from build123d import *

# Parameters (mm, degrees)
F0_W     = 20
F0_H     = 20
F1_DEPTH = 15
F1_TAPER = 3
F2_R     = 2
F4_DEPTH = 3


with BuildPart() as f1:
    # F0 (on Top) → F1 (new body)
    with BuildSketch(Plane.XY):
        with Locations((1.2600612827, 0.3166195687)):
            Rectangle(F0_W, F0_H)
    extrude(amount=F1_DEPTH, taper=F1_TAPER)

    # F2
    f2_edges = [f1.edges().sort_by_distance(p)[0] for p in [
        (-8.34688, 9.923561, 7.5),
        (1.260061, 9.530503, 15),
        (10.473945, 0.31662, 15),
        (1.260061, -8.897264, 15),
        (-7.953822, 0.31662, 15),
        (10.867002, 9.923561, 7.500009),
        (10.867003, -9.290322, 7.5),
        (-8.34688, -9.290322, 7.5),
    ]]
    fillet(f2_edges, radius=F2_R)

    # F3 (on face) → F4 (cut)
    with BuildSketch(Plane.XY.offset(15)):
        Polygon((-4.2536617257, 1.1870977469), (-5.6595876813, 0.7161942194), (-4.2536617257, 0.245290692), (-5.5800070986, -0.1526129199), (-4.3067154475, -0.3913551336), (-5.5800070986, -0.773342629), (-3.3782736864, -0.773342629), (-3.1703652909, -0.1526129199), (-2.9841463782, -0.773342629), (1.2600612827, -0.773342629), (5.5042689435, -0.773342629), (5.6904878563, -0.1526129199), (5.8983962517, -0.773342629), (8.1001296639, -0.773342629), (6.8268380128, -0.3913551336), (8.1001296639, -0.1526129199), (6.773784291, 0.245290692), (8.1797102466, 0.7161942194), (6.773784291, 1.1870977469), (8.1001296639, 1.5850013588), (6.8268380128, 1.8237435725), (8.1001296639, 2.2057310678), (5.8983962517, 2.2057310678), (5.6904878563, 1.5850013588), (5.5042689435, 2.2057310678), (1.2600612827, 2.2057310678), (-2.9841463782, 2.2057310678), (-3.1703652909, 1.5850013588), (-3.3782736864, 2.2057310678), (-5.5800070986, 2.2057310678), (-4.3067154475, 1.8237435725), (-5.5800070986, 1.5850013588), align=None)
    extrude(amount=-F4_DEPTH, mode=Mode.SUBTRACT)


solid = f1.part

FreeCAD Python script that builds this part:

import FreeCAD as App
import Part
import Sketcher
from FreeCAD import Vector
Q = App.Units.Quantity


def edges_at(feature, points):
    """Names of the edges that pass closest to the given points."""
    edges = feature.Shape.Edges
    near = lambda p: min(range(len(edges)), key=lambda i: edges[i].distToShape(Part.Vertex(*p))[0])
    return sorted({f"Edge{near(p) + 1}" for p in points})


def add_polygon(sketch, points):
    """Adds a closed chain of lines whose ends are joined by coincident constraints."""
    first, n = sketch.GeometryCount, len(points)
    for a, b in zip(points, points[1:] + points[:1]):
        sketch.addGeometry(Part.LineSegment(App.Vector(*a, 0), App.Vector(*b, 0)), False)
    for i in range(n):
        sketch.addConstraint(Sketcher.Constraint("Coincident", first + i, 2, first + (i + 1) % n, 1))

doc = App.newDocument("Part")
body = doc.addObject("PartDesign::Body", "Body")

# Sketch on XY plane
sketch1 = body.newObject("Sketcher::SketchObject", "Sketch")
sketch1.AttachmentSupport = (doc.getObject("XY_Plane"), [""])
sketch1.MapMode = "FlatFace"
add_polygon(sketch1, [(-9, 10), (-9, -10), (11, -10), (11, 10)])  # lines 0-3
sketch1.addConstraint(Sketcher.Constraint("Vertical", 0))
sketch1.addConstraint(Sketcher.Constraint("Horizontal", 1))
sketch1.addConstraint(Sketcher.Constraint("Vertical", 2))
sketch1.addConstraint(Sketcher.Constraint("Horizontal", 3))
sketch1.addConstraint(Sketcher.Constraint("Equal", 3, 0))
sketch1.addConstraint(Sketcher.Constraint("DistanceX", 1, 1, 1, 2, Q("20 mm")))
sketch1.addConstraint(Sketcher.Constraint("DistanceX", 0, 2, -1, 1, Q("8.739939 mm")))
sketch1.addConstraint(Sketcher.Constraint("DistanceY", 0, 2, -1, 1, Q("9.68338 mm")))
pad1 = body.newObject("PartDesign::Pad", "Pad")
pad1.Profile = sketch1
pad1.Length = 15
pad1.TaperAngle = -3
doc.recompute()

fillet = body.newObject("PartDesign::Fillet", "Fillet")
fillet.Base = (pad1, edges_at(pad1, [
    (-8.347, 9.924, 7.5),
    (1.26, 9.531, 15),
    (10.474, 0.317, 15),
    (1.26, -8.897, 15),
    (-7.954, 0.317, 15),
    (10.867, 9.924, 7.5),
    (10.867, -9.29, 7.5),
    (-8.347, -9.29, 7.5),
]))
fillet.Radius = 2

# Sketch on XY plane
sketch2 = body.newObject("Sketcher::SketchObject", "Sketch001")
sketch2.AttachmentSupport = (doc.getObject("XY_Plane"), [""])
sketch2.MapMode = "FlatFace"
sketch2.AttachmentOffset = App.Placement(Vector(0, 0, 15), App.Rotation())
add_polygon(sketch2, [(-4.3, 1.2), (-5.7, 0.7), (-4.3, 0.2), (-5.6, -0.2), (-4.3, -0.4), (-5.6, -0.8), (-3.4, -0.8), (-3.2, -0.2), (-3, -0.8), (5.5, -0.8), (5.7, -0.2), (5.9, -0.8), (8.1, -0.8), (6.8, -0.4), (8.1, -0.2), (6.8, 0.2), (8.2, 0.7), (6.8, 1.2), (8.1, 1.6), (6.8, 1.8), (8.1, 2.2), (5.9, 2.2), (5.7, 1.6), (5.5, 2.2), (-3, 2.2), (-3.2, 1.6), (-3.4, 2.2), (-5.6, 2.2), (-4.3, 1.8), (-5.6, 1.6)])  # lines 0-29
sketch2.addConstraint(Sketcher.Constraint("Horizontal", 5))
sketch2.addConstraint(Sketcher.Constraint("Horizontal", 8))
sketch2.addConstraint(Sketcher.Constraint("Horizontal", 11))
sketch2.addConstraint(Sketcher.Constraint("Horizontal", 20))
sketch2.addConstraint(Sketcher.Constraint("Horizontal", 23))
sketch2.addConstraint(Sketcher.Constraint("Horizontal", 26))
sketch2.addConstraint(Sketcher.Constraint("Parallel", 2, 4))
sketch2.addConstraint(Sketcher.Constraint("Perpendicular", 1, 6))
sketch2.addConstraint(Sketcher.Constraint("Perpendicular", 4, 7))
sketch2.addConstraint(Sketcher.Constraint("Perpendicular", 0, 10))
sketch2.addConstraint(Sketcher.Constraint("Perpendicular", 9, 12))
sketch2.addConstraint(Sketcher.Constraint("Parallel", 12, 14))
sketch2.addConstraint(Sketcher.Constraint("Perpendicular", 10, 15))
sketch2.addConstraint(Sketcher.Constraint("Perpendicular", 6, 16))
sketch2.addConstraint(Sketcher.Constraint("Perpendicular", 7, 17))
sketch2.addConstraint(Sketcher.Constraint("Parallel", 3, 18))
sketch2.addConstraint(Sketcher.Constraint("Parallel", 17, 19))
sketch2.addConstraint(Sketcher.Constraint("Perpendicular", 16, 21))
sketch2.addConstraint(Sketcher.Constraint("Perpendicular", 19, 22))
sketch2.addConstraint(Sketcher.Constraint("Perpendicular", 14, 24))
sketch2.addConstraint(Sketcher.Constraint("Perpendicular", 15, 25))
sketch2.addConstraint(Sketcher.Constraint("Perpendicular", 24, 27))
sketch2.addConstraint(Sketcher.Constraint("Parallel", 13, 28))
sketch2.addConstraint(Sketcher.Constraint("Parallel", 27, 29))
sketch2.addConstraint(Sketcher.Constraint("Horizontal", 2, 2, 6, 2))
sketch2.addConstraint(Sketcher.Constraint("Horizontal", 5, 2, 7, 2))
sketch2.addConstraint(Sketcher.Constraint("Horizontal", 6, 2, 9, 2))
sketch2.addConstraint(Sketcher.Constraint("Horizontal", 8, 2, 10, 2))
sketch2.addConstraint(Sketcher.Constraint("Horizontal", 3, 2, 12, 2))
sketch2.addConstraint(Sketcher.Constraint("Horizontal", 9, 2, 13, 2))
sketch2.addConstraint(Sketcher.Constraint("Horizontal", 1, 2, 14, 2))
sketch2.addConstraint(Sketcher.Constraint("Horizontal", 0, 2, 15, 2))
sketch2.addConstraint(Sketcher.Constraint("Horizontal", 17, 2, 21, 2))
sketch2.addConstraint(Sketcher.Constraint("Horizontal", 20, 2, 22, 2))
sketch2.addConstraint(Sketcher.Constraint("Horizontal", 21, 2, 24, 2))
sketch2.addConstraint(Sketcher.Constraint("Horizontal", 23, 2, 25, 2))
sketch2.addConstraint(Sketcher.Constraint("Horizontal", 18, 2, 27, 2))
sketch2.addConstraint(Sketcher.Constraint("Horizontal", 24, 2, 28, 2))
sketch2.addConstraint(Sketcher.Constraint("Horizontal", 16, 2, 29, 2))
sketch2.addConstraint(Sketcher.Constraint("Vertical", 2, 2, 4, 2))
sketch2.addConstraint(Sketcher.Constraint("Vertical", 11, 2, 13, 2))
sketch2.addConstraint(Sketcher.Constraint("Vertical", 14, 2, 16, 2))
sketch2.addConstraint(Sketcher.Constraint("Vertical", 13, 2, 17, 2))
sketch2.addConstraint(Sketcher.Constraint("Vertical", 12, 2, 18, 2))
sketch2.addConstraint(Sketcher.Constraint("Vertical", 17, 2, 19, 2))
sketch2.addConstraint(Sketcher.Constraint("Vertical", 10, 2, 20, 2))
sketch2.addConstraint(Sketcher.Constraint("Vertical", 9, 2, 21, 2))
sketch2.addConstraint(Sketcher.Constraint("Vertical", 8, 2, 22, 2))
sketch2.addConstraint(Sketcher.Constraint("Vertical", 7, 2, 23, 2))
sketch2.addConstraint(Sketcher.Constraint("Equal", 5, 11))
sketch2.addConstraint(Sketcher.Constraint("DistanceY", -1, 1, 17, 2, Q("1.585001 mm")))
sketch2.addConstraint(Sketcher.Constraint("DistanceY", 12, 2, 18, 2, Q("2.215099 mm")))
sketch2.addConstraint(Sketcher.Constraint("Distance", 3, Q("1.29548 mm")))
sketch2.addConstraint(Sketcher.Constraint("Distance", 7, Q("0.648061 mm")))
sketch2.addConstraint(Sketcher.Constraint("DistanceX", 5, 1, 5, 2, Q("2.201733 mm")))
sketch2.addConstraint(Sketcher.Constraint("DistanceX", 8, 1, 8, 2, Q("8.488415 mm")))
sketch2.addConstraint(Sketcher.Constraint("DistanceX", 1, 2, -1, 1, Q("4.253662 mm")))
sketch2.addConstraint(Sketcher.Constraint("DistanceY", -1, 1, 1, 2, Q("0.245291 mm")))
sketch2.addConstraint(Sketcher.Constraint("DistanceX", -1, 1, 8, 2, Q("5.504269 mm")))
sketch2.addConstraint(Sketcher.Constraint("DistanceX", -1, 1, 11, 2, Q("8.10013 mm")))
pocket1 = body.newObject("PartDesign::Pocket", "Pocket")
pocket1.Profile = sketch2
pocket1.Length = 3

doc.recompute()
